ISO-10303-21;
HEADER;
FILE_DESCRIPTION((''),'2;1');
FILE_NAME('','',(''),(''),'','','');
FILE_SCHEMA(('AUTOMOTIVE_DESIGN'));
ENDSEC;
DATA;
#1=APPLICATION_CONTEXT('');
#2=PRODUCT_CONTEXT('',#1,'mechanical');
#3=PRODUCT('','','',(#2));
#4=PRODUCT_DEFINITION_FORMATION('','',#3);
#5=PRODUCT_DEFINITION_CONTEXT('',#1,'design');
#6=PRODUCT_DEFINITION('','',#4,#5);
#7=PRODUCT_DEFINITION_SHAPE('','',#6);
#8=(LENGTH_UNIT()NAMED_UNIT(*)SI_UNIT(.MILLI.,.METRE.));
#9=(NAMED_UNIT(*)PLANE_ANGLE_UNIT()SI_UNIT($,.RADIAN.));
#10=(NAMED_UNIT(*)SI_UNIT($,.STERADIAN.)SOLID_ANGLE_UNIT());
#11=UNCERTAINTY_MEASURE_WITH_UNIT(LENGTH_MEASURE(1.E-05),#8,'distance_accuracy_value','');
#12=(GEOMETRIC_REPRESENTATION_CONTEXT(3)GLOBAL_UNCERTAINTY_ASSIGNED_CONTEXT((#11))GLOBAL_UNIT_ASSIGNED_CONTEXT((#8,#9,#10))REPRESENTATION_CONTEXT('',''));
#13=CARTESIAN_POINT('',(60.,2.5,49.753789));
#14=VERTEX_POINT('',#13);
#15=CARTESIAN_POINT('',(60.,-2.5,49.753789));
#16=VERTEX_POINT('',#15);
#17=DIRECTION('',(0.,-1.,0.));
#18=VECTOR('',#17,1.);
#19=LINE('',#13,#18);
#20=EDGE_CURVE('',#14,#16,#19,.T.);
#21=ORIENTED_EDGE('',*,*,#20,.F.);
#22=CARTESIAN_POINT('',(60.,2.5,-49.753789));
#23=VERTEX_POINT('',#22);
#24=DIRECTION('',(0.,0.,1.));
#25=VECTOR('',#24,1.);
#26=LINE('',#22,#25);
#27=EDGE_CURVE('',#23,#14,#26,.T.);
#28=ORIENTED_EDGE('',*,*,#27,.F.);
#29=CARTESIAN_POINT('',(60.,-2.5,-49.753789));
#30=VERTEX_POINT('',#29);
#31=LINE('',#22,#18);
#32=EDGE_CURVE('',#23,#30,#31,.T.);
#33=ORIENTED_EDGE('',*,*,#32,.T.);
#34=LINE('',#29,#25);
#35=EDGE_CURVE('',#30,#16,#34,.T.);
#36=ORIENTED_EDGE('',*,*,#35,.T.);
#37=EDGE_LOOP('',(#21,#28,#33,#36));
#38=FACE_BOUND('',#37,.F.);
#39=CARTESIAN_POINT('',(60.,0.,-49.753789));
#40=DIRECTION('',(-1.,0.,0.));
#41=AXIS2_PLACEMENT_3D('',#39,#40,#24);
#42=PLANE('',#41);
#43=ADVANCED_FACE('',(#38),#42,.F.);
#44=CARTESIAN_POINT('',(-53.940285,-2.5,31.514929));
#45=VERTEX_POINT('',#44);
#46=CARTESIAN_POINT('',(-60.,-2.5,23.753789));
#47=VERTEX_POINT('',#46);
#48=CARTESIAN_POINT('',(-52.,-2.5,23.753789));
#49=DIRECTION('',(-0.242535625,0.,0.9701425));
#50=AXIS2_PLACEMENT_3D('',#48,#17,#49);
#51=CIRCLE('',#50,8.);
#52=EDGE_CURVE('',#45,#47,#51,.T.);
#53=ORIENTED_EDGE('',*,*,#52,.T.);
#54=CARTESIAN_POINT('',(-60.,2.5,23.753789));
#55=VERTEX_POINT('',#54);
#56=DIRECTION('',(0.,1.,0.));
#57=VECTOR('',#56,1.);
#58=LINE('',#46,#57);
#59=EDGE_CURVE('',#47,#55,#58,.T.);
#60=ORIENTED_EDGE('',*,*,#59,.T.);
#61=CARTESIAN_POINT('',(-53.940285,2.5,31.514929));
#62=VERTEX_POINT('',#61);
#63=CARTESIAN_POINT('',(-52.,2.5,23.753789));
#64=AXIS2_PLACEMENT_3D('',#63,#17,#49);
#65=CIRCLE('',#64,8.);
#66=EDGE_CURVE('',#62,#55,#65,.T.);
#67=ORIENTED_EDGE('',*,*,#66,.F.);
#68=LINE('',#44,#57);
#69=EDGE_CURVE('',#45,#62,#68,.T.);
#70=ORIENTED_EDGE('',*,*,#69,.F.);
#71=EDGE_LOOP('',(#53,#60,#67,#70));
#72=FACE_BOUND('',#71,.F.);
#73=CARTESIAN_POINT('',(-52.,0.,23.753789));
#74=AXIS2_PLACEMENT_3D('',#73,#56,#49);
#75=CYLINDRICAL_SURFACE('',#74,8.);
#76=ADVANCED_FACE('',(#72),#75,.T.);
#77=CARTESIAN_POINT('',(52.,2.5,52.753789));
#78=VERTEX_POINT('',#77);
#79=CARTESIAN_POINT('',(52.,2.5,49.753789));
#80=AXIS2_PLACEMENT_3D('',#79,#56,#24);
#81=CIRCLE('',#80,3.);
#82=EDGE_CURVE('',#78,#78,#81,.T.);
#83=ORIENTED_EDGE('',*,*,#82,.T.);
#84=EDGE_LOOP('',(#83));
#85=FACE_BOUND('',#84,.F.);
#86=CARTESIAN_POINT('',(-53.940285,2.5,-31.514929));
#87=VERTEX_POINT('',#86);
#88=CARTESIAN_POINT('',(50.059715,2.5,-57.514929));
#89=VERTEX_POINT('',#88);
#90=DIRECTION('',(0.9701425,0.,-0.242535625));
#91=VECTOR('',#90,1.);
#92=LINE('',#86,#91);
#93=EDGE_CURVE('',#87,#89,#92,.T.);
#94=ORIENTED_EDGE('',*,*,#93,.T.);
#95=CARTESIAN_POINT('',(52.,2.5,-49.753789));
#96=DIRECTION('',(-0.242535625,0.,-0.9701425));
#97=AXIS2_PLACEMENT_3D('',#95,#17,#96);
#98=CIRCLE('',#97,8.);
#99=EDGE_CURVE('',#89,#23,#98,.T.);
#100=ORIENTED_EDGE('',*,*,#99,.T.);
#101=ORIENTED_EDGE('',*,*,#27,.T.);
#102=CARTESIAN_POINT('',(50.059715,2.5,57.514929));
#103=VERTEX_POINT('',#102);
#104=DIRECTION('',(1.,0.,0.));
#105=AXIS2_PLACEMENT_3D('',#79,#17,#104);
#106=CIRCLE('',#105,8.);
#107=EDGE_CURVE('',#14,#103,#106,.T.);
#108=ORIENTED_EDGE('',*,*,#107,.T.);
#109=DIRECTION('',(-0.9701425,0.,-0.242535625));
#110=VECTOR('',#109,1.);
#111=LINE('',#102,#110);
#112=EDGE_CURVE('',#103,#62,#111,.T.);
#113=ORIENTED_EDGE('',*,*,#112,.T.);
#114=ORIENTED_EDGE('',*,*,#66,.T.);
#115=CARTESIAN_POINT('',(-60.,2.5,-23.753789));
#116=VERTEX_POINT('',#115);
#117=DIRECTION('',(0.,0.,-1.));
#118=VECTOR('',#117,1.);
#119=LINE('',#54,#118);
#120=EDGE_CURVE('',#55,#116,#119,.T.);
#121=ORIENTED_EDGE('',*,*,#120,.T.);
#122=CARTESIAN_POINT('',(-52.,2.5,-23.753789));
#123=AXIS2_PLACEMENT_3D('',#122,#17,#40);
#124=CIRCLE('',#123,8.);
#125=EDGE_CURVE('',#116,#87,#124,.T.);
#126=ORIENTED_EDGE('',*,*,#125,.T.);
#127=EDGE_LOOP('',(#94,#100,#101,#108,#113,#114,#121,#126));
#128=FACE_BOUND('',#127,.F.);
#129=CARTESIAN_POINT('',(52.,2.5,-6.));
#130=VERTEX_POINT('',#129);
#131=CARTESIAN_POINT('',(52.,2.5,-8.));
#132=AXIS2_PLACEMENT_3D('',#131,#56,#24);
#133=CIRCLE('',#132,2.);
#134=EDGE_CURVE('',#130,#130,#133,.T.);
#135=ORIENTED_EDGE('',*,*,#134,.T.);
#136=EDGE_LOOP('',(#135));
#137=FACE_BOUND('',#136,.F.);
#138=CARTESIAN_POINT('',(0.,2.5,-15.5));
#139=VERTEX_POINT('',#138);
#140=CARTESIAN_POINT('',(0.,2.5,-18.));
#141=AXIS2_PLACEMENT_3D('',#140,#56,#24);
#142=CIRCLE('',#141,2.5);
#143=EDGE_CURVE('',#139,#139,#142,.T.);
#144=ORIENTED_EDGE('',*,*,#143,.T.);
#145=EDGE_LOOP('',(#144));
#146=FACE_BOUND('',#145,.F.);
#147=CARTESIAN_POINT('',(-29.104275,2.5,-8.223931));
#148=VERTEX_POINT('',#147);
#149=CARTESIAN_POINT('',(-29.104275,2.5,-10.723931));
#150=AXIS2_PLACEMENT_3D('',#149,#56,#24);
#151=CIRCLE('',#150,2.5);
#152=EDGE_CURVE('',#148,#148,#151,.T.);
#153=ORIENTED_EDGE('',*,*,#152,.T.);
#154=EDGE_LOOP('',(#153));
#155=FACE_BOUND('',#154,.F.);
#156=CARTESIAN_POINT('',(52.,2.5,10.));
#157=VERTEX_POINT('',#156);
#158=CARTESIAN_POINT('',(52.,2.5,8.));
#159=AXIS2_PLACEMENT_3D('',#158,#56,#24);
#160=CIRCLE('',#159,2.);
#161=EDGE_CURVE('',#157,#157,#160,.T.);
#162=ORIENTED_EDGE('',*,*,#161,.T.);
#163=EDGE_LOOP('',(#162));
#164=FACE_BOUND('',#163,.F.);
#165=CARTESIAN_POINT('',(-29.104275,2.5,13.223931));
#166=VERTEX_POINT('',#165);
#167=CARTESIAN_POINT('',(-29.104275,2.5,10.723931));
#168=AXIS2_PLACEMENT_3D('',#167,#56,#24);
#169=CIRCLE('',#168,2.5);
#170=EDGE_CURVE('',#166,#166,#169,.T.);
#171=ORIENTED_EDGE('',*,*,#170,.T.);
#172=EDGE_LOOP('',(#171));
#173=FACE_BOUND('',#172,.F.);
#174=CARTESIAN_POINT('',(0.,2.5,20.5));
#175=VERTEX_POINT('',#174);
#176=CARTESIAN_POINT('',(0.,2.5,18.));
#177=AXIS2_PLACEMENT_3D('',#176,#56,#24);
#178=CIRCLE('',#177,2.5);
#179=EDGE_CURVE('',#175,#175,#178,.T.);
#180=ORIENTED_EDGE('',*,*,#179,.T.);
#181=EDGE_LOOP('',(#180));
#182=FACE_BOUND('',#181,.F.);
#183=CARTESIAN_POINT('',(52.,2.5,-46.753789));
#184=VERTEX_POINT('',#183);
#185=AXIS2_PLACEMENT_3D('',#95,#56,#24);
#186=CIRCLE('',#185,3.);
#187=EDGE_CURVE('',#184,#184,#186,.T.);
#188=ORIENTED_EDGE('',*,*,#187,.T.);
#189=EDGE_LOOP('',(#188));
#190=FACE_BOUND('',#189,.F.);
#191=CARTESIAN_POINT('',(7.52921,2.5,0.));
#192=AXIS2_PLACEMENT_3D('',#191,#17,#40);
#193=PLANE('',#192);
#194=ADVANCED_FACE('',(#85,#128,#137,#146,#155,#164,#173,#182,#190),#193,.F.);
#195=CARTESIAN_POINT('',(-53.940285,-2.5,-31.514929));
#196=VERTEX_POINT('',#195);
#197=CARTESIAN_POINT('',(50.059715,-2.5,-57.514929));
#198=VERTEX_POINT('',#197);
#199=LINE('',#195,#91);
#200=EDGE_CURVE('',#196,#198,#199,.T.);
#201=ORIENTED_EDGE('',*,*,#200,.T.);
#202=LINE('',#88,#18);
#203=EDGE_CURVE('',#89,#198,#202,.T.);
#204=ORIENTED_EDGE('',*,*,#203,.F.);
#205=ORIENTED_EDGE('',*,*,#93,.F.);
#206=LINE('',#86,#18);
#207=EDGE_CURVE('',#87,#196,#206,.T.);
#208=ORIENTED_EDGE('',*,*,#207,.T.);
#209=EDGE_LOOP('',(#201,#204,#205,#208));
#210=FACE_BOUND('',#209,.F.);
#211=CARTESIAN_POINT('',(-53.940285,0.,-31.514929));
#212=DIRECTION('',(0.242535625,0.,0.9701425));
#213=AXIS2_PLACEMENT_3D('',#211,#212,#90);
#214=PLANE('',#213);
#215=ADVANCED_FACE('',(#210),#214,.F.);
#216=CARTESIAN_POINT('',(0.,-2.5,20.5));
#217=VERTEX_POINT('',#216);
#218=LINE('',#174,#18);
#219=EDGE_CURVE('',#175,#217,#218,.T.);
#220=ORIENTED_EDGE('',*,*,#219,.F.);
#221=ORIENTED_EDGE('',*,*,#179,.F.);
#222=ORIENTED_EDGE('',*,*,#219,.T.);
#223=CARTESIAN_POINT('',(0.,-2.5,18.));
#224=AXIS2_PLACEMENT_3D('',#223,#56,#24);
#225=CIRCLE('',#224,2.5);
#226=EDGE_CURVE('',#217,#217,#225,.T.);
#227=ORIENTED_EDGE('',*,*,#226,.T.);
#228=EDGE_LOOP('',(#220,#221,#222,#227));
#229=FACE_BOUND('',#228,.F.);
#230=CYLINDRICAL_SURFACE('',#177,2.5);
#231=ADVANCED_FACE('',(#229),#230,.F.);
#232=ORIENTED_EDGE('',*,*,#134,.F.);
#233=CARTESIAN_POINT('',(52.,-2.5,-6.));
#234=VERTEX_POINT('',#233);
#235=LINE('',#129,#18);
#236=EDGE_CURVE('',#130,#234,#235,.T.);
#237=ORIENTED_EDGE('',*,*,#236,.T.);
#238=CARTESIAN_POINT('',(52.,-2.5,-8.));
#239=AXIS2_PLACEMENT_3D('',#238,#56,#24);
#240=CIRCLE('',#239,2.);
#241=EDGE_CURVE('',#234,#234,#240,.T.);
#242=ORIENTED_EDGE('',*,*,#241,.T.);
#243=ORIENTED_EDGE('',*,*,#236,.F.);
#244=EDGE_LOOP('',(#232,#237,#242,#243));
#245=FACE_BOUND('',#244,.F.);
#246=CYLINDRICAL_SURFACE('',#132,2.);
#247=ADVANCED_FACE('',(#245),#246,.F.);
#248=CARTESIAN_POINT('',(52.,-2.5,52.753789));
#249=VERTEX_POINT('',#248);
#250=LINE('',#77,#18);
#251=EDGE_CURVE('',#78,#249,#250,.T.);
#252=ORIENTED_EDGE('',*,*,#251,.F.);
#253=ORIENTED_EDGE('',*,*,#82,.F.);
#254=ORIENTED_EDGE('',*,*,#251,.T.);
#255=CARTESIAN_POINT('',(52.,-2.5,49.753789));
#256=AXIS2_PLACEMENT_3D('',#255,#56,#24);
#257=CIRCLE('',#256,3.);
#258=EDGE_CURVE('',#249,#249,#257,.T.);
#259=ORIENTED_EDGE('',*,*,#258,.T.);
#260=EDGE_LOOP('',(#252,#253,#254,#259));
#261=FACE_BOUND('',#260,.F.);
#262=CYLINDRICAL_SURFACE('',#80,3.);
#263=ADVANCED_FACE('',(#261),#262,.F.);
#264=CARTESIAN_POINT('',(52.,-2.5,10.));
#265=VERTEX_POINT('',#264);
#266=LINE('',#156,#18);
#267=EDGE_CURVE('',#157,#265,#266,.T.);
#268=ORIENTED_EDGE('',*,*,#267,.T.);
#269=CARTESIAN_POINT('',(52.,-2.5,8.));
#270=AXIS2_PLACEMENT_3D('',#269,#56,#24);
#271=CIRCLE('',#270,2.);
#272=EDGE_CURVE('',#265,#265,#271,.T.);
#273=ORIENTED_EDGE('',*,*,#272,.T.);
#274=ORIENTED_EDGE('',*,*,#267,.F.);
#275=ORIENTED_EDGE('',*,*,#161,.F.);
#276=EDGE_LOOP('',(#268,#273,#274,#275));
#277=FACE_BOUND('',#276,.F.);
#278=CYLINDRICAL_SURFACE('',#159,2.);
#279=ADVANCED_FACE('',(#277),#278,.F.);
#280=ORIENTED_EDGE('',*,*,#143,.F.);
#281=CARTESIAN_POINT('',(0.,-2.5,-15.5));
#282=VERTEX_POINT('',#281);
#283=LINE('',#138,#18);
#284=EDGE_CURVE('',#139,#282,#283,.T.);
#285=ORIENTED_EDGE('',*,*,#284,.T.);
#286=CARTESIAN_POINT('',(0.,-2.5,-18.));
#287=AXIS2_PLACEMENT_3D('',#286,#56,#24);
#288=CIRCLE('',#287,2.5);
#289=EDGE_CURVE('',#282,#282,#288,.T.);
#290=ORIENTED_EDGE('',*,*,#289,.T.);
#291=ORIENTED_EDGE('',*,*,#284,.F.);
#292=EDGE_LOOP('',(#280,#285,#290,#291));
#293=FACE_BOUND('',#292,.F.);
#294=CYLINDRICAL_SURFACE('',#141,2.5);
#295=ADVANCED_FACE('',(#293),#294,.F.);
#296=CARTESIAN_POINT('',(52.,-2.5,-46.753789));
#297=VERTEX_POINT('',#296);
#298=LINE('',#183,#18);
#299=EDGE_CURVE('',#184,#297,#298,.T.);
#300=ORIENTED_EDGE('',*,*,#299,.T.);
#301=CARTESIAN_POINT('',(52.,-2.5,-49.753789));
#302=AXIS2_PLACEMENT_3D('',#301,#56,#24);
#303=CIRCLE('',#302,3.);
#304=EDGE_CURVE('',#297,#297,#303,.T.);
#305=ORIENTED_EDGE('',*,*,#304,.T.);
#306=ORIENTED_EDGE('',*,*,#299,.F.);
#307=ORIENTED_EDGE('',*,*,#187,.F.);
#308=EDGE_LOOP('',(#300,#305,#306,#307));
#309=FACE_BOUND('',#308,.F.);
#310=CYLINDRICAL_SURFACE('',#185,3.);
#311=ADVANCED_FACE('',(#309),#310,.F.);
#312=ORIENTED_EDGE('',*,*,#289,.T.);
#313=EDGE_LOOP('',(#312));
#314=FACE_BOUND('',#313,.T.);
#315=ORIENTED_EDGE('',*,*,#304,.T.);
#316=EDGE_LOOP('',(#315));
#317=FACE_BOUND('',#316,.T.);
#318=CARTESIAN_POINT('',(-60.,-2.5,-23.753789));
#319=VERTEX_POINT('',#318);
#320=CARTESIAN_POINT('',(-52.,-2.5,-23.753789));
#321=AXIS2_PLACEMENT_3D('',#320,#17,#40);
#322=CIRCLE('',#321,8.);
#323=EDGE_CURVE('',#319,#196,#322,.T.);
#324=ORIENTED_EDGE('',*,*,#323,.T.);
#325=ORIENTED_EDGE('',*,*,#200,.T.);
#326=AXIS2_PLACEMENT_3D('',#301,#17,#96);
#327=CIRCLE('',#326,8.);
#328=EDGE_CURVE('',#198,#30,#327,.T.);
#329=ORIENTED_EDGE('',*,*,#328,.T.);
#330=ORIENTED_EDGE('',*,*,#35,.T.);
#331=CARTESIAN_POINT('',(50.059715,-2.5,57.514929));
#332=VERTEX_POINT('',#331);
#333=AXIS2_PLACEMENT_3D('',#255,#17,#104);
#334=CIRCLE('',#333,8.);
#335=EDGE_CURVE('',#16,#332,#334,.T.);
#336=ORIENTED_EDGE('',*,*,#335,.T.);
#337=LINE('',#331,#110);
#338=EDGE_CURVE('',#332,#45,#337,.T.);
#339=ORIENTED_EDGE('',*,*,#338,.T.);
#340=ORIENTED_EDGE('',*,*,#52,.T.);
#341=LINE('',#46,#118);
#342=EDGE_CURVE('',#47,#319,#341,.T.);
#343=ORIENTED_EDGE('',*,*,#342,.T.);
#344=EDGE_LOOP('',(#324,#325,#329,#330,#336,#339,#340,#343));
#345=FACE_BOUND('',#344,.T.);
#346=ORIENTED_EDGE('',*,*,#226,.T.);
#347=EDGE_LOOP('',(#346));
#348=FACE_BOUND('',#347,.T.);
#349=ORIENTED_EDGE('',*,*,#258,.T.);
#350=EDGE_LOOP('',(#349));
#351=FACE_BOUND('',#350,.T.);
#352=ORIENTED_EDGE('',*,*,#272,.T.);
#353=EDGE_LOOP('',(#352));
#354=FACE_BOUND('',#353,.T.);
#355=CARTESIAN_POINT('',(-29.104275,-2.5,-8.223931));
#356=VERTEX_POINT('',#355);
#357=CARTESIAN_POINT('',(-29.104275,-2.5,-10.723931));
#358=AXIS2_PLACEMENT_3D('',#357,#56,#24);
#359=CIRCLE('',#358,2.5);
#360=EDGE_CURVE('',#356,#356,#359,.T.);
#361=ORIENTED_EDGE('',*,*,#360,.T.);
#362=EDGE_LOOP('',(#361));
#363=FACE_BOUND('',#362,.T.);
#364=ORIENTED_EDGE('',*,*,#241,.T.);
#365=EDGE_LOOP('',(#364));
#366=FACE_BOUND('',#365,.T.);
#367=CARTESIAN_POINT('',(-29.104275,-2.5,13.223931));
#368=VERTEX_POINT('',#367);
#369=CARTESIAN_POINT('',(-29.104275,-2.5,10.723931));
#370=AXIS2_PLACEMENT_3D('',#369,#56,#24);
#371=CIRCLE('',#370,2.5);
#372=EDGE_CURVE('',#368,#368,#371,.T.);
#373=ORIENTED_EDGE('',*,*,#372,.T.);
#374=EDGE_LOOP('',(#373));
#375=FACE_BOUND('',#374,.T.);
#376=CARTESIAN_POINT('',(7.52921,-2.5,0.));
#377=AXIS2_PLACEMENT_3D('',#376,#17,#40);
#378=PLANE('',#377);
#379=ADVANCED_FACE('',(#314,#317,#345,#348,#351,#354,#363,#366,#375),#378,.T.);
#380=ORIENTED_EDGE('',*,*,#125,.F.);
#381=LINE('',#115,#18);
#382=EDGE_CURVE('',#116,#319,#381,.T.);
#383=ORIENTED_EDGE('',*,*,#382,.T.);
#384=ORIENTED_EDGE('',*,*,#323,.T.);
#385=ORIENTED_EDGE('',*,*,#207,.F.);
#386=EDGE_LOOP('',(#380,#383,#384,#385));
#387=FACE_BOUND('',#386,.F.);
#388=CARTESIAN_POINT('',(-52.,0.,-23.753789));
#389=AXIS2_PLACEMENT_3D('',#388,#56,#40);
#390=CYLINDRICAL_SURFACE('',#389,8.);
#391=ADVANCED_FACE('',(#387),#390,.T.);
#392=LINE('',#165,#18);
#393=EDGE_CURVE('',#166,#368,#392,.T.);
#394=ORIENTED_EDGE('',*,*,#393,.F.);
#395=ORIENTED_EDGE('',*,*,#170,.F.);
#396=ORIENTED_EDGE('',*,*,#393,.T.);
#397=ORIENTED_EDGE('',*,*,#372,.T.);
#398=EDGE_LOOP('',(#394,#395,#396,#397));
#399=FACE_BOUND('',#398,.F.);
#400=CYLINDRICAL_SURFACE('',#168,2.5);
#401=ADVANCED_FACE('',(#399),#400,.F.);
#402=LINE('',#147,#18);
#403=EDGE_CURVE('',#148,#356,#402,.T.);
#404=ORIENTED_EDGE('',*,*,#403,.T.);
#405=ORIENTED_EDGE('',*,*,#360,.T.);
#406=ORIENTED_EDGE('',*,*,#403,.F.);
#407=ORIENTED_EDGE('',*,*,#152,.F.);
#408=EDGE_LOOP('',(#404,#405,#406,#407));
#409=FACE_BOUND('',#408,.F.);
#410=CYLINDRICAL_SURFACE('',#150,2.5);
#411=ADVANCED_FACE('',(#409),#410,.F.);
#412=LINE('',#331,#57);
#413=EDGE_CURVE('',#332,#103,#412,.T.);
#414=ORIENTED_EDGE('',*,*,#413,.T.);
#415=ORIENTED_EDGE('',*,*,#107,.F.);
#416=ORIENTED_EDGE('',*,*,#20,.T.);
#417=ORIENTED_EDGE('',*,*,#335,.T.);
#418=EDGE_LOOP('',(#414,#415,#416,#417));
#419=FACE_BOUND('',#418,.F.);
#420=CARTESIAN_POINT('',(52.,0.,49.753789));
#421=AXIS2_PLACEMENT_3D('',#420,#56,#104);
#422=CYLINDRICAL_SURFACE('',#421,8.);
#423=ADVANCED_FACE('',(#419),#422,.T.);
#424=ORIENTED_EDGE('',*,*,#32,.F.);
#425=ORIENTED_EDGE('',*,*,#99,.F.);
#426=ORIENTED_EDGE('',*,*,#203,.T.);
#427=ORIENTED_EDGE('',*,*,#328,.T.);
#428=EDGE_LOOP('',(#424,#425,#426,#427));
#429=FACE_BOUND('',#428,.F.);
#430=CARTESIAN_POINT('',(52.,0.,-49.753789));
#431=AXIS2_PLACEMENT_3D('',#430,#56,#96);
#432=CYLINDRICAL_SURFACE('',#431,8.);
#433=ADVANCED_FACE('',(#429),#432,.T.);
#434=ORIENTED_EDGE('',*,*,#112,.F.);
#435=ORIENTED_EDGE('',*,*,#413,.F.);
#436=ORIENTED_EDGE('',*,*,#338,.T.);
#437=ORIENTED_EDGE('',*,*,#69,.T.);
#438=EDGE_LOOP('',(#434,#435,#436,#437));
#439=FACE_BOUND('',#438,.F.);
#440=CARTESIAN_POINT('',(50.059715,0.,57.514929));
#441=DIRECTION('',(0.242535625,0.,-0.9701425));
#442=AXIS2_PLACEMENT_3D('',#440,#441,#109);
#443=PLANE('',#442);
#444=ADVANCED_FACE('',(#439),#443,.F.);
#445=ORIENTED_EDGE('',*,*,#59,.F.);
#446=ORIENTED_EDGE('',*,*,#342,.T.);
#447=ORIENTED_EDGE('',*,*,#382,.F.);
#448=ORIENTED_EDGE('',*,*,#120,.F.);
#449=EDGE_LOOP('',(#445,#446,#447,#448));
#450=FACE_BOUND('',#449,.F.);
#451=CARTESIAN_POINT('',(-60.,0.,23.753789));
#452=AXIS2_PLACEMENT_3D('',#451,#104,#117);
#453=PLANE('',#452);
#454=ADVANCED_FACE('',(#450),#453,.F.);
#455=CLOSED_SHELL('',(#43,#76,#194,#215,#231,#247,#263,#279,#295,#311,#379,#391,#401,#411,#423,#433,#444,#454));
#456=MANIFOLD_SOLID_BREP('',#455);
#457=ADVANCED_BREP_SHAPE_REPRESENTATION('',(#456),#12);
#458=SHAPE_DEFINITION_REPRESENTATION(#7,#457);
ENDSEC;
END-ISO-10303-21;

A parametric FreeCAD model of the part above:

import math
import FreeCAD as App
import Part
import Sketcher

doc = App.newDocument("Part")
body = doc.addObject("PartDesign::Body", "Body")

# Sketch on XZ plane
sketch1 = body.newObject("Sketcher::SketchObject", "Sketch")
sketch1.AttachmentSupport = (doc.getObject("XZ_Plane"), [""])
sketch1.MapMode = "FlatFace"
sketch1.addGeometry([
    Part.LineSegment(App.Vector(-60, -24, 0), App.Vector(-60, 24, 0)),  # 0
    Part.ArcOfCircle(Part.Circle(App.Vector(-52, 24, 0), App.Vector(0, 0, 1), 8), math.radians(104), math.radians(180)),  # 1
    Part.LineSegment(App.Vector(-54, 32, 0), App.Vector(50, 58, 0)),  # 2
    Part.ArcOfCircle(Part.Circle(App.Vector(52, 50, 0), App.Vector(0, 0, 1), 8), math.radians(0), math.radians(104)),  # 3
    Part.LineSegment(App.Vector(60, 50, 0), App.Vector(60, -50, 0)),  # 4
    Part.ArcOfCircle(Part.Circle(App.Vector(52, -50, 0), App.Vector(0, 0, 1), 8), math.radians(-104), math.radians(0)),  # 5
    Part.LineSegment(App.Vector(50, -58, 0), App.Vector(-54, -32, 0)),  # 6
    Part.ArcOfCircle(Part.Circle(App.Vector(-52, -24, 0), App.Vector(0, 0, 1), 8), math.radians(-180), math.radians(-104)),  # 7
], False)
sketch1.addConstraint([
    Sketcher.Constraint("Tangent", 0, 2, 1, 2),
    Sketcher.Constraint("Tangent", 1, 1, 2, 1),
    Sketcher.Constraint("Tangent", 2, 2, 3, 2),
    Sketcher.Constraint("Tangent", 3, 1, 4, 1),
    Sketcher.Constraint("Tangent", 4, 2, 5, 2),
    Sketcher.Constraint("Tangent", 5, 1, 6, 1),
    Sketcher.Constraint("Tangent", 6, 2, 7, 2),
    Sketcher.Constraint("Tangent", 7, 1, 0, 1),
    Sketcher.Constraint("Vertical", 0),
    Sketcher.Constraint("Vertical", 4),
    Sketcher.Constraint("Equal", 1, 3),
    Sketcher.Constraint("Equal", 3, 5),
    Sketcher.Constraint("Equal", 5, 7),
    Sketcher.Constraint("Symmetric", 2, 2, 5, 1, -1),
    Sketcher.Constraint("Radius", 1, 8.0),
    Sketcher.Constraint("DistanceX", 1, 3, -1, 1, 52.0),
    Sketcher.Constraint("DistanceX", -1, 1, 3, 3, 52.0),
    Sketcher.Constraint("DistanceY", 1, 3, 3, 3, 26.0),
    Sketcher.Constraint("DistanceY", 0, 1, 0, 2, 47.507577),
])
pad1 = body.newObject("PartDesign::Pad", "Pad")
pad1.Profile = sketch1
pad1.Length = 5
pad1.Midplane = True

# Sketch on XZ plane
sketch2 = body.newObject("Sketcher::SketchObject", "Sketch001")
sketch2.AttachmentSupport = (doc.getObject("XZ_Plane"), [""])
sketch2.MapMode = "FlatFace"
sketch2.AttachmentOffset = App.Placement(App.Vector(0, 0, -2.5), App.Rotation())
sketch2.addGeometry([
    Part.Circle(App.Vector(52, -49.8, 0), App.Vector(0, 0, 1), 3),  # 0
    Part.Circle(App.Vector(0, -18, 0), App.Vector(0, 0, 1), 2.5),  # 1
    Part.Circle(App.Vector(52, 49.8, 0), App.Vector(0, 0, 1), 3),  # 2
    Part.Circle(App.Vector(0, 18, 0), App.Vector(0, 0, 1), 2.5),  # 3
    Part.Circle(App.Vector(-29.1, -10.7, 0), App.Vector(0, 0, 1), 2.5),  # 4
    Part.Circle(App.Vector(-29.1, 10.7, 0), App.Vector(0, 0, 1), 2.5),  # 5
    Part.Circle(App.Vector(52, -8, 0), App.Vector(0, 0, 1), 2),  # 6
    Part.Circle(App.Vector(52, 8, 0), App.Vector(0, 0, 1), 2),  # 7
], False)
sketch2.addConstraint([
    Sketcher.Constraint("Equal", 0, 2),
    Sketcher.Constraint("Equal", 1, 3),
    Sketcher.Constraint("Equal", 3, 4),
    Sketcher.Constraint("Equal", 4, 5),
    Sketcher.Constraint("Equal", 6, 7),
    Sketcher.Constraint("Symmetric", 1, 3, 3, 3, -1, 1),
    Sketcher.Constraint("Symmetric", 0, 3, 2, 3, -1),
    Sketcher.Constraint("Symmetric", 4, 3, 5, 3, -1),
    Sketcher.Constraint("Symmetric", 6, 3, 7, 3, -1),
    Sketcher.Constraint("PointOnObject", 1, 3, -2),
    Sketcher.Constraint("Vertical", 2, 3, 6, 3),
    Sketcher.Constraint("Diameter", 0, 6.0),
    Sketcher.Constraint("Diameter", 1, 5.0),
    Sketcher.Constraint("Diameter", 6, 4.0),
    Sketcher.Constraint("DistanceX", -1, 1, 0, 3, 52.0),
    Sketcher.Constraint("DistanceY", 1, 3, -1, 1, 18.0),
    Sketcher.Constraint("DistanceY", 6, 3, -1, 1, 8.0),
    Sketcher.Constraint("DistanceY", 0, 3, -1, 1, 49.753789),
    Sketcher.Constraint("DistanceY", 4, 3, -1, 1, 10.723931),
    Sketcher.Constraint("DistanceX", 4, 3, -1, 1, 29.104275),
])
pocket1 = body.newObject("PartDesign::Pocket", "Pocket")
pocket1.Profile = sketch2
pocket1.Length = 5
pocket1.Reversed = True

doc.recompute()
